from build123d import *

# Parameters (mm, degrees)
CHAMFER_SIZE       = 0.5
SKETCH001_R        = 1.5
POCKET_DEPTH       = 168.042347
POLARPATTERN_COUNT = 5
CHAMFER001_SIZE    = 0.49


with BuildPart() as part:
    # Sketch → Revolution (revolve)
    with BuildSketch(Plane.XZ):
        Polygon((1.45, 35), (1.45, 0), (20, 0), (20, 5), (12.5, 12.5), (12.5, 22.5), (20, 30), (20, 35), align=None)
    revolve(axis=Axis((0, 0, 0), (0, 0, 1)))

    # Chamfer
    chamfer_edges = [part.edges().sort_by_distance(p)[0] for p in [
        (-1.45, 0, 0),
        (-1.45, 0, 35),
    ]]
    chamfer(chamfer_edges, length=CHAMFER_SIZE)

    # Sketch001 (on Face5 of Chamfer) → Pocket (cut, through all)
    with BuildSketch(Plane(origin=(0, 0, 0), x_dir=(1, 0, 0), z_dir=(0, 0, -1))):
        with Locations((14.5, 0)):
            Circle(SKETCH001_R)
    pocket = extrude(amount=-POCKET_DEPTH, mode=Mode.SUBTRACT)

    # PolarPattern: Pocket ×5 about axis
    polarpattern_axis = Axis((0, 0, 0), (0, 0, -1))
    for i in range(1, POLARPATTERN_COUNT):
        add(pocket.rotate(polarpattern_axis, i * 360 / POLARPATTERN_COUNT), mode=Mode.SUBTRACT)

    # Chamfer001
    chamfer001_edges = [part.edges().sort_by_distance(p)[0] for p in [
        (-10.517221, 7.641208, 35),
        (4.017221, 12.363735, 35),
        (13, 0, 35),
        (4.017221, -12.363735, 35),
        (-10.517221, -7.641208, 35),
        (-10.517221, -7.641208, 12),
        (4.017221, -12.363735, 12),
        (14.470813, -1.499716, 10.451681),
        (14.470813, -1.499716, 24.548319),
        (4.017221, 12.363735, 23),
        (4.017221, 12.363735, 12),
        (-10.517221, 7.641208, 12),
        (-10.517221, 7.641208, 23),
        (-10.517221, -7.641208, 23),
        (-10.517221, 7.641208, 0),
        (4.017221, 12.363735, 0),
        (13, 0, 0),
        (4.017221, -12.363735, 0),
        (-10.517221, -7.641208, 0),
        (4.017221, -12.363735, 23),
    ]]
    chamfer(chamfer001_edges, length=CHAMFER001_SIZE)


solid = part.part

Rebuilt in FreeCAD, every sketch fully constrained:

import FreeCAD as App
import Part
import Sketcher
from FreeCAD import Vector


def edges_at(feature, points):
    """Names of the edges that pass closest to the given points."""
    edges = feature.Shape.Edges
    near = lambda p: min(range(len(edges)), key=lambda i: edges[i].distToShape(Part.Vertex(*p))[0])
    return sorted({f"Edge{near(p) + 1}" for p in points})


def add_polygon(sketch, points):
    """Adds a closed chain of lines whose ends are joined by coincident constraints."""
    first, n = sketch.GeometryCount, len(points)
    for a, b in zip(points, points[1:] + points[:1]):
        sketch.addGeometry(Part.LineSegment(App.Vector(*a, 0), App.Vector(*b, 0)), False)
    for i in range(n):
        sketch.addConstraint(Sketcher.Constraint("Coincident", first + i, 2, first + (i + 1) % n, 1))

doc = App.newDocument("Part")
body = doc.addObject("PartDesign::Body", "Body")

# Sketch on XZ plane
sketch1 = body.newObject("Sketcher::SketchObject", "Sketch")
sketch1.AttachmentSupport = (doc.getObject("XZ_Plane"), [""])
sketch1.MapMode = "FlatFace"
add_polygon(sketch1, [(1.45, 35), (1.45, 0), (20, 0), (20, 5), (12.5, 12.5), (12.5, 22.5), (20, 30), (20, 35)])  # lines 0-7
sketch1.addConstraint([
    Sketcher.Constraint("Vertical", 0),
    Sketcher.Constraint("Horizontal", 1),
    Sketcher.Constraint("Vertical", 2),
    Sketcher.Constraint("Vertical", 4),
    Sketcher.Constraint("Vertical", 6),
    Sketcher.Constraint("Horizontal", 7),
    Sketcher.Constraint("PointOnObject", 0, 2, -1),
    Sketcher.Constraint("Perpendicular", 3, 5),
    Sketcher.Constraint("Vertical", 2, 2, 5, 2),
    Sketcher.Constraint("Equal", 2, 6),
    Sketcher.Constraint("Equal", 3, 5),
    Sketcher.Constraint("DistanceY", 0, 2, 0, 1, 35.0),
    Sketcher.Constraint("DistanceY", 2, 1, 2, 2, 5.0),
    Sketcher.Constraint("DistanceY", 4, 1, 4, 2, 10.0),
    Sketcher.Constraint("DistanceX", -1, 1, 1, 2, 20.0),
    Sketcher.Constraint("DistanceX", 1, 1, 1, 2, 18.55),
])
revolution = body.newObject("PartDesign::Revolution", "Revolution")
revolution.Profile = sketch1
revolution.ReferenceAxis = (sketch1, ["V_Axis"])
revolution.Angle = 360
doc.recompute()

chamfer = body.newObject("PartDesign::Chamfer", "Chamfer")
chamfer.Base = (revolution, edges_at(revolution, [(-1.45, 0, 0), (-1.45, 0, 35)]))
chamfer.Size = 0.5

# Sketch on XY plane
sketch2 = body.newObject("Sketcher::SketchObject", "Sketch001")
sketch2.AttachmentSupport = (doc.getObject("XY_Plane"), [""])
sketch2.MapMode = "FlatFace"
sketch2.addGeometry(Part.Circle(Vector(14.5, 0, 0), Vector(0, 0, 1), 1.5), False)
sketch2.addConstraint([
    Sketcher.Constraint("PointOnObject", 0, 3, -1),
    Sketcher.Constraint("Diameter", 0, 3.0),
    Sketcher.Constraint("DistanceX", -1, 1, 0, 3, 14.5),
])
pocket1 = body.newObject("PartDesign::Pocket", "Pocket")
pocket1.Profile = sketch2
pocket1.Type = "ThroughAll"
pocket1.Reversed = True
doc.recompute()

polarpattern = body.newObject("PartDesign::PolarPattern", "PolarPattern")
polarpattern.Originals = [pocket1]
polarpattern.Axis = (doc.getObject("Z_Axis"), [""])
polarpattern.Angle = 360
polarpattern.Occurrences = 5
body.Tip = polarpattern
doc.recompute()

chamfer2 = body.newObject("PartDesign::Chamfer", "Chamfer001")
chamfer2.Base = (polarpattern, edges_at(polarpattern, [
    (-10.517, 7.641, 35),
    (4.017, 12.364, 35),
    (13, 0, 35),
    (4.017, -12.364, 35),
    (-10.517, -7.641, 35),
    (-10.517, -7.641, 12),
    (4.017, -12.364, 12),
    (14.471, -1.5, 10.452),
    (14.471, -1.5, 24.548),
    (4.017, 12.364, 23),
    (4.017, 12.364, 12),
    (-10.517, 7.641, 12),
    (-10.517, 7.641, 23),
    (-10.517, -7.641, 23),
    (-10.517, 7.641, 0),
    (4.017, 12.364, 0),
    (13, 0, 0),
    (4.017, -12.364, 0),
    (-10.517, -7.641, 0),
    (4.017, -12.364, 23),
]))
chamfer2.Size = 0.49

doc.recompute()
